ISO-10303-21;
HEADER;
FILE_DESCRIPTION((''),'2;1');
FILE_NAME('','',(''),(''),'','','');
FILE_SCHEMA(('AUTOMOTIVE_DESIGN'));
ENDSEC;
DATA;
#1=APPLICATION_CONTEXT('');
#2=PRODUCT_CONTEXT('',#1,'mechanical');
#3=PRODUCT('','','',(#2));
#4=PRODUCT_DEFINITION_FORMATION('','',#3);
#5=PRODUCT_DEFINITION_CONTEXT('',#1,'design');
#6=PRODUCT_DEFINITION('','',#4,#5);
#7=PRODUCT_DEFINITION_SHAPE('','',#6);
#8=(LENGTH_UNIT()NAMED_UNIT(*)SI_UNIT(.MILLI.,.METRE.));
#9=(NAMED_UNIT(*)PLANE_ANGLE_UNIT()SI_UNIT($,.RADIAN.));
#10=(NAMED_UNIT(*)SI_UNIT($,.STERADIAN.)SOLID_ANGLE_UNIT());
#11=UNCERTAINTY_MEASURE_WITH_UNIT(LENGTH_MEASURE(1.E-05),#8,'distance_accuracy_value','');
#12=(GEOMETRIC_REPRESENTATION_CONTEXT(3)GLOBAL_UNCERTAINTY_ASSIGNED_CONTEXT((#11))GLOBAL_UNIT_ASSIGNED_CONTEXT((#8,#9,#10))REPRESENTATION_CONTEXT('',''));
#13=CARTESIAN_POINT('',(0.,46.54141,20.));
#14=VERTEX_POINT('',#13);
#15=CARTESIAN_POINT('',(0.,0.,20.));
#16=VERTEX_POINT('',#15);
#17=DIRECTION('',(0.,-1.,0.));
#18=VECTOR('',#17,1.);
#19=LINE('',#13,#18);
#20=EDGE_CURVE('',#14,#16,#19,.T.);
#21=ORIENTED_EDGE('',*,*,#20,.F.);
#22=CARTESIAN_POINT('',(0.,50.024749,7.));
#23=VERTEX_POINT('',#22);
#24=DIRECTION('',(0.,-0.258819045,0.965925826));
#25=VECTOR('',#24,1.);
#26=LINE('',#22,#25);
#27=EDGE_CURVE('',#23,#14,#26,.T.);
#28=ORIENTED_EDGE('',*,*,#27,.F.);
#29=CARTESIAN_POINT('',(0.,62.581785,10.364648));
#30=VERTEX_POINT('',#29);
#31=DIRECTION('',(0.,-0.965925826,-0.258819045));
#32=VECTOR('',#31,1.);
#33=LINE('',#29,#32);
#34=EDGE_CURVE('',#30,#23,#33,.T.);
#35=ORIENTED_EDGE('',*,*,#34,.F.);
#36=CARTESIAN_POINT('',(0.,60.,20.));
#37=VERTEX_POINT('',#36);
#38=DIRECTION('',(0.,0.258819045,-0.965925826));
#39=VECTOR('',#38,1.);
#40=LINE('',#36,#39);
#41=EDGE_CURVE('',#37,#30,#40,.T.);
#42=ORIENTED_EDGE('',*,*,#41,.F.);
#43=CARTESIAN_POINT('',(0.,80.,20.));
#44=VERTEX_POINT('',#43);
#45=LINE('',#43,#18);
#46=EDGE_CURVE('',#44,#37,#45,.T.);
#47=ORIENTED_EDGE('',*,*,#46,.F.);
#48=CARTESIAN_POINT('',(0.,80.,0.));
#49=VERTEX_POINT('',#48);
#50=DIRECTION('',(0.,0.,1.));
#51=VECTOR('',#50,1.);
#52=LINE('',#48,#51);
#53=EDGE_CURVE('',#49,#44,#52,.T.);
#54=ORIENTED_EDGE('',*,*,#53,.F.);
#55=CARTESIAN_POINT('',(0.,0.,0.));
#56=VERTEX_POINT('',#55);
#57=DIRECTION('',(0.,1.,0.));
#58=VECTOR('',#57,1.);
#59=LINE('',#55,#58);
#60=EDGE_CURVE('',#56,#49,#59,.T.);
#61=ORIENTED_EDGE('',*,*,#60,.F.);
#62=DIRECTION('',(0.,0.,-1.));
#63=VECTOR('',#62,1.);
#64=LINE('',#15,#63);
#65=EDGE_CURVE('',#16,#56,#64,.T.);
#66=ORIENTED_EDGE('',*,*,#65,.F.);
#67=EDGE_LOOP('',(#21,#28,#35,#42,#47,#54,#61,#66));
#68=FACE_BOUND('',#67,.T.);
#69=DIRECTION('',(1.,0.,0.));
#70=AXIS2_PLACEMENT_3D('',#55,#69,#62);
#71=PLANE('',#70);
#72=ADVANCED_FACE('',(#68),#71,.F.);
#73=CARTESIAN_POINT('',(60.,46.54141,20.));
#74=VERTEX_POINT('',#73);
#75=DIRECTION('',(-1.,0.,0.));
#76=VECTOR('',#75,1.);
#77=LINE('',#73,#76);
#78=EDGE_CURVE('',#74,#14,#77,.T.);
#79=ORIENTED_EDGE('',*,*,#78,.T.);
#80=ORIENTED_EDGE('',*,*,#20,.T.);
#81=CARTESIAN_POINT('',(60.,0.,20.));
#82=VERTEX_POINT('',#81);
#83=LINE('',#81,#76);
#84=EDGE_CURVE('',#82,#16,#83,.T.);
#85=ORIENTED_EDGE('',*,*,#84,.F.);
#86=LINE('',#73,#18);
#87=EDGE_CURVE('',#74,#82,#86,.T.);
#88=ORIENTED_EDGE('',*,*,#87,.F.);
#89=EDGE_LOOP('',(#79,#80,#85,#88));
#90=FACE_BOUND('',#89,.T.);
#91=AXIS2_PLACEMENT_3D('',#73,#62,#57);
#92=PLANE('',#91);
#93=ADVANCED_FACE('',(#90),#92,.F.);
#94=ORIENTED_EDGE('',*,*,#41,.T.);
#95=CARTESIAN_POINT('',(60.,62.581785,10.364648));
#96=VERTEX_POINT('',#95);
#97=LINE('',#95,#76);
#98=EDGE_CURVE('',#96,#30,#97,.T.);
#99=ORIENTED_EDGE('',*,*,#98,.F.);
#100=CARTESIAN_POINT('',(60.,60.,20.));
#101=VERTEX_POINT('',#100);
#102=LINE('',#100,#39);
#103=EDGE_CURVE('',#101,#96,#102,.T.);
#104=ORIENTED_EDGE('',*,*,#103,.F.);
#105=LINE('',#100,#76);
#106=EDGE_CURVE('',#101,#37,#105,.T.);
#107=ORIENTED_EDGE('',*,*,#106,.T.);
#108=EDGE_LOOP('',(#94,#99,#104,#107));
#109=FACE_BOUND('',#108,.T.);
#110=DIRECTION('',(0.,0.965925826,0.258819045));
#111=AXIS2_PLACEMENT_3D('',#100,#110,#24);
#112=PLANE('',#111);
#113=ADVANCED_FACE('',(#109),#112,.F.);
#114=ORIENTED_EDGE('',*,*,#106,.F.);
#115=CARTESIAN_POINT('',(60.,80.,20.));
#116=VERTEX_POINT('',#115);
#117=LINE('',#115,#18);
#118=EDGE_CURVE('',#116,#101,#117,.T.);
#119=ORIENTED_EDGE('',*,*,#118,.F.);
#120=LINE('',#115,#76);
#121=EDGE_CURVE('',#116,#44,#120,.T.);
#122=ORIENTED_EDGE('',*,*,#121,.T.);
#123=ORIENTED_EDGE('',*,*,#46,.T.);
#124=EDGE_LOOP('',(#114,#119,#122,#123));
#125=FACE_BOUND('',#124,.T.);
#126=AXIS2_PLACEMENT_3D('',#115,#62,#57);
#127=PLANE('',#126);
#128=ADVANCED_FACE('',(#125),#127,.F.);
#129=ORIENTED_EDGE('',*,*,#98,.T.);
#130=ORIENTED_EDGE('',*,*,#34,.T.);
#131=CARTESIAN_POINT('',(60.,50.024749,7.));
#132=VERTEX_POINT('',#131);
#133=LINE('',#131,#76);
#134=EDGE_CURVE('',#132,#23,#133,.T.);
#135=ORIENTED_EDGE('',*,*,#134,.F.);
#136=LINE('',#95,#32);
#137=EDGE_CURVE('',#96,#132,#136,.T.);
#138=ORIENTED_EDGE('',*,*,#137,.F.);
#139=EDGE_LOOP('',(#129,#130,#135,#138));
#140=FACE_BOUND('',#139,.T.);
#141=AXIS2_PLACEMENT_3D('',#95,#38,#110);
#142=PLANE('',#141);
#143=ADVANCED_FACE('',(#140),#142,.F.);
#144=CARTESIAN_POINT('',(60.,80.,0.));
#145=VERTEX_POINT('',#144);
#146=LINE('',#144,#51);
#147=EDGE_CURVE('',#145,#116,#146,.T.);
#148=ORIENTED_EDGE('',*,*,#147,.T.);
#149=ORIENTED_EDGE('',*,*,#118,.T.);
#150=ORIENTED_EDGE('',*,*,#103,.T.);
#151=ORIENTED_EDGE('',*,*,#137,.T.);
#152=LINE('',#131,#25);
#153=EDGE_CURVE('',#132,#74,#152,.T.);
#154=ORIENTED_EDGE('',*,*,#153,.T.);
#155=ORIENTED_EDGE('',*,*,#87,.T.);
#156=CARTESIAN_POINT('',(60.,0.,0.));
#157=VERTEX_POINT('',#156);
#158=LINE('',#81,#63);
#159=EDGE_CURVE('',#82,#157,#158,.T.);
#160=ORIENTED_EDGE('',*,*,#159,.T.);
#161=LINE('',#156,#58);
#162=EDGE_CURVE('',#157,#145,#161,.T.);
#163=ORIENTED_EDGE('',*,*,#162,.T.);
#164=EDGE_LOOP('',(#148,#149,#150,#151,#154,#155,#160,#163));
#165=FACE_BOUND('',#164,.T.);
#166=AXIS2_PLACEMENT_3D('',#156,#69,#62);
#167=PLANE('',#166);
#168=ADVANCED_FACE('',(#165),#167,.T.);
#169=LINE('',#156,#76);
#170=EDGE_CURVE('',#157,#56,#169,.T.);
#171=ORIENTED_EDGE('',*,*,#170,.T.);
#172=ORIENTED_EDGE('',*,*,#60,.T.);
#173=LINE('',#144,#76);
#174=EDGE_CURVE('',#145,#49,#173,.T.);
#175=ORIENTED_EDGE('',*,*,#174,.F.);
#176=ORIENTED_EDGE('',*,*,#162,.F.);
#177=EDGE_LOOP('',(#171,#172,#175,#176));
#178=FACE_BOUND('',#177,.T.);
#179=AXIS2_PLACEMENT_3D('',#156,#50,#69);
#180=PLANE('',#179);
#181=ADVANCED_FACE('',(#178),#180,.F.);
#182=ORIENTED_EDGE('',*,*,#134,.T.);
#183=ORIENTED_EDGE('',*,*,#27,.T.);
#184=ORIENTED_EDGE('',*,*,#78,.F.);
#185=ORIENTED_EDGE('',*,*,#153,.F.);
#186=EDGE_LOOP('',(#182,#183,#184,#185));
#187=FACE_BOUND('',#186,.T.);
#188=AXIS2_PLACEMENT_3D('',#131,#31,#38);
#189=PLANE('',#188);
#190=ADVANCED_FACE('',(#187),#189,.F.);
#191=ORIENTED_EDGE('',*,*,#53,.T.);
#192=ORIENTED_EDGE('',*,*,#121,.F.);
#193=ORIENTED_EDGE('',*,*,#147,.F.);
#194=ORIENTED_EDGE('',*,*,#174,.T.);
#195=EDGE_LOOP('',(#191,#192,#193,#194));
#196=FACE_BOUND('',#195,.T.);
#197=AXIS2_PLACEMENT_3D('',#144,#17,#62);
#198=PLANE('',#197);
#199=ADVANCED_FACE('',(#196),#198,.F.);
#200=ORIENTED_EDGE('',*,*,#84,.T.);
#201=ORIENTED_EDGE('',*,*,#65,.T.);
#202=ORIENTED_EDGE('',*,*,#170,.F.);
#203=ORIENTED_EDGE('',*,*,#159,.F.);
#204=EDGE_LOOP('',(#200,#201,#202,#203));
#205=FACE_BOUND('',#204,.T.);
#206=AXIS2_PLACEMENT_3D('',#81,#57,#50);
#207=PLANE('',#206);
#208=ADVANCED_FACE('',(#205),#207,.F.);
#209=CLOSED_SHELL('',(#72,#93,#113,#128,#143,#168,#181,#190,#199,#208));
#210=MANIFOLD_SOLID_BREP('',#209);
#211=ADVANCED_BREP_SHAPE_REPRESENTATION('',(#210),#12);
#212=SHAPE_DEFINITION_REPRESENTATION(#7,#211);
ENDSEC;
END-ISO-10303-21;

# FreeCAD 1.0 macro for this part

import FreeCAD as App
import Part
import Sketcher
Q = App.Units.Quantity

doc = App.newDocument("Part")
body = doc.addObject("PartDesign::Body", "Body")

sketch1 = doc.addObject("Sketcher::SketchObject", "Sketch")
body.addObject(sketch1)
sketch1.AttachmentSupport = (doc.YZ_Plane, [""])
sketch1.MapMode = "FlatFace"
sketch1.addGeometry(Part.LineSegment(App.Vector(0, 0, 0), App.Vector(80, 0, 0)), False)
sketch1.addGeometry(Part.LineSegment(App.Vector(80, 0, 0), App.Vector(80, 20, 0)), False)
sketch1.addGeometry(Part.LineSegment(App.Vector(80, 20, 0), App.Vector(60, 20, 0)), False)
sketch1.addGeometry(Part.LineSegment(App.Vector(60, 20, 0), App.Vector(63, 10, 0)), False)
sketch1.addGeometry(Part.LineSegment(App.Vector(63, 10, 0), App.Vector(50, 7, 0)), False)
sketch1.addGeometry(Part.LineSegment(App.Vector(50, 7, 0), App.Vector(47, 20, 0)), False)
sketch1.addGeometry(Part.LineSegment(App.Vector(47, 20, 0), App.Vector(0, 20, 0)), False)
sketch1.addGeometry(Part.LineSegment(App.Vector(0, 20, 0), App.Vector(0, 0, 0)), False)
sketch1.addConstraint(Sketcher.Constraint("Coincident", 0, 2, 1, 1))
sketch1.addConstraint(Sketcher.Constraint("Coincident", 1, 2, 2, 1))
sketch1.addConstraint(Sketcher.Constraint("Coincident", 2, 2, 3, 1))
sketch1.addConstraint(Sketcher.Constraint("Coincident", 3, 2, 4, 1))
sketch1.addConstraint(Sketcher.Constraint("Coincident", 4, 2, 5, 1))
sketch1.addConstraint(Sketcher.Constraint("Coincident", 5, 2, 6, 1))
sketch1.addConstraint(Sketcher.Constraint("Coincident", 6, 2, 7, 1))
sketch1.addConstraint(Sketcher.Constraint("Coincident", 7, 2, 0, 1))
sketch1.addConstraint(Sketcher.Constraint("Horizontal", 0))
sketch1.addConstraint(Sketcher.Constraint("Vertical", 1))
sketch1.addConstraint(Sketcher.Constraint("Horizontal", 2))
sketch1.addConstraint(Sketcher.Constraint("Horizontal", 6))
sketch1.addConstraint(Sketcher.Constraint("Vertical", 7))
sketch1.addConstraint(Sketcher.Constraint("Coincident", 7, 2, -1, 1))
sketch1.addConstraint(Sketcher.Constraint("Perpendicular", 3, 4))
sketch1.addConstraint(Sketcher.Constraint("Perpendicular", 4, 5))
sketch1.addConstraint(Sketcher.Constraint("Horizontal", 2, 2, 5, 2))
sketch1.addConstraint(Sketcher.Constraint("Equal", 2, 1))
sketch1.addConstraint(Sketcher.Constraint("DistanceX", 0, 1, 0, 2, 80.0))
sketch1.addConstraint(Sketcher.Constraint("DistanceX", 2, 2, 2, 1, 20.0))
sketch1.addConstraint(Sketcher.Constraint("Angle", 3, Q("-75 deg")))
sketch1.addConstraint(Sketcher.Constraint("Distance", 4, 13.0))
sketch1.addConstraint(Sketcher.Constraint("DistanceY", -1, 1, 4, 2, 7.0))
pad1 = doc.addObject("PartDesign::Pad", "Pad")
body.addObject(pad1)
pad1.Profile = sketch1
pad1.Length = 60

doc.recompute()
